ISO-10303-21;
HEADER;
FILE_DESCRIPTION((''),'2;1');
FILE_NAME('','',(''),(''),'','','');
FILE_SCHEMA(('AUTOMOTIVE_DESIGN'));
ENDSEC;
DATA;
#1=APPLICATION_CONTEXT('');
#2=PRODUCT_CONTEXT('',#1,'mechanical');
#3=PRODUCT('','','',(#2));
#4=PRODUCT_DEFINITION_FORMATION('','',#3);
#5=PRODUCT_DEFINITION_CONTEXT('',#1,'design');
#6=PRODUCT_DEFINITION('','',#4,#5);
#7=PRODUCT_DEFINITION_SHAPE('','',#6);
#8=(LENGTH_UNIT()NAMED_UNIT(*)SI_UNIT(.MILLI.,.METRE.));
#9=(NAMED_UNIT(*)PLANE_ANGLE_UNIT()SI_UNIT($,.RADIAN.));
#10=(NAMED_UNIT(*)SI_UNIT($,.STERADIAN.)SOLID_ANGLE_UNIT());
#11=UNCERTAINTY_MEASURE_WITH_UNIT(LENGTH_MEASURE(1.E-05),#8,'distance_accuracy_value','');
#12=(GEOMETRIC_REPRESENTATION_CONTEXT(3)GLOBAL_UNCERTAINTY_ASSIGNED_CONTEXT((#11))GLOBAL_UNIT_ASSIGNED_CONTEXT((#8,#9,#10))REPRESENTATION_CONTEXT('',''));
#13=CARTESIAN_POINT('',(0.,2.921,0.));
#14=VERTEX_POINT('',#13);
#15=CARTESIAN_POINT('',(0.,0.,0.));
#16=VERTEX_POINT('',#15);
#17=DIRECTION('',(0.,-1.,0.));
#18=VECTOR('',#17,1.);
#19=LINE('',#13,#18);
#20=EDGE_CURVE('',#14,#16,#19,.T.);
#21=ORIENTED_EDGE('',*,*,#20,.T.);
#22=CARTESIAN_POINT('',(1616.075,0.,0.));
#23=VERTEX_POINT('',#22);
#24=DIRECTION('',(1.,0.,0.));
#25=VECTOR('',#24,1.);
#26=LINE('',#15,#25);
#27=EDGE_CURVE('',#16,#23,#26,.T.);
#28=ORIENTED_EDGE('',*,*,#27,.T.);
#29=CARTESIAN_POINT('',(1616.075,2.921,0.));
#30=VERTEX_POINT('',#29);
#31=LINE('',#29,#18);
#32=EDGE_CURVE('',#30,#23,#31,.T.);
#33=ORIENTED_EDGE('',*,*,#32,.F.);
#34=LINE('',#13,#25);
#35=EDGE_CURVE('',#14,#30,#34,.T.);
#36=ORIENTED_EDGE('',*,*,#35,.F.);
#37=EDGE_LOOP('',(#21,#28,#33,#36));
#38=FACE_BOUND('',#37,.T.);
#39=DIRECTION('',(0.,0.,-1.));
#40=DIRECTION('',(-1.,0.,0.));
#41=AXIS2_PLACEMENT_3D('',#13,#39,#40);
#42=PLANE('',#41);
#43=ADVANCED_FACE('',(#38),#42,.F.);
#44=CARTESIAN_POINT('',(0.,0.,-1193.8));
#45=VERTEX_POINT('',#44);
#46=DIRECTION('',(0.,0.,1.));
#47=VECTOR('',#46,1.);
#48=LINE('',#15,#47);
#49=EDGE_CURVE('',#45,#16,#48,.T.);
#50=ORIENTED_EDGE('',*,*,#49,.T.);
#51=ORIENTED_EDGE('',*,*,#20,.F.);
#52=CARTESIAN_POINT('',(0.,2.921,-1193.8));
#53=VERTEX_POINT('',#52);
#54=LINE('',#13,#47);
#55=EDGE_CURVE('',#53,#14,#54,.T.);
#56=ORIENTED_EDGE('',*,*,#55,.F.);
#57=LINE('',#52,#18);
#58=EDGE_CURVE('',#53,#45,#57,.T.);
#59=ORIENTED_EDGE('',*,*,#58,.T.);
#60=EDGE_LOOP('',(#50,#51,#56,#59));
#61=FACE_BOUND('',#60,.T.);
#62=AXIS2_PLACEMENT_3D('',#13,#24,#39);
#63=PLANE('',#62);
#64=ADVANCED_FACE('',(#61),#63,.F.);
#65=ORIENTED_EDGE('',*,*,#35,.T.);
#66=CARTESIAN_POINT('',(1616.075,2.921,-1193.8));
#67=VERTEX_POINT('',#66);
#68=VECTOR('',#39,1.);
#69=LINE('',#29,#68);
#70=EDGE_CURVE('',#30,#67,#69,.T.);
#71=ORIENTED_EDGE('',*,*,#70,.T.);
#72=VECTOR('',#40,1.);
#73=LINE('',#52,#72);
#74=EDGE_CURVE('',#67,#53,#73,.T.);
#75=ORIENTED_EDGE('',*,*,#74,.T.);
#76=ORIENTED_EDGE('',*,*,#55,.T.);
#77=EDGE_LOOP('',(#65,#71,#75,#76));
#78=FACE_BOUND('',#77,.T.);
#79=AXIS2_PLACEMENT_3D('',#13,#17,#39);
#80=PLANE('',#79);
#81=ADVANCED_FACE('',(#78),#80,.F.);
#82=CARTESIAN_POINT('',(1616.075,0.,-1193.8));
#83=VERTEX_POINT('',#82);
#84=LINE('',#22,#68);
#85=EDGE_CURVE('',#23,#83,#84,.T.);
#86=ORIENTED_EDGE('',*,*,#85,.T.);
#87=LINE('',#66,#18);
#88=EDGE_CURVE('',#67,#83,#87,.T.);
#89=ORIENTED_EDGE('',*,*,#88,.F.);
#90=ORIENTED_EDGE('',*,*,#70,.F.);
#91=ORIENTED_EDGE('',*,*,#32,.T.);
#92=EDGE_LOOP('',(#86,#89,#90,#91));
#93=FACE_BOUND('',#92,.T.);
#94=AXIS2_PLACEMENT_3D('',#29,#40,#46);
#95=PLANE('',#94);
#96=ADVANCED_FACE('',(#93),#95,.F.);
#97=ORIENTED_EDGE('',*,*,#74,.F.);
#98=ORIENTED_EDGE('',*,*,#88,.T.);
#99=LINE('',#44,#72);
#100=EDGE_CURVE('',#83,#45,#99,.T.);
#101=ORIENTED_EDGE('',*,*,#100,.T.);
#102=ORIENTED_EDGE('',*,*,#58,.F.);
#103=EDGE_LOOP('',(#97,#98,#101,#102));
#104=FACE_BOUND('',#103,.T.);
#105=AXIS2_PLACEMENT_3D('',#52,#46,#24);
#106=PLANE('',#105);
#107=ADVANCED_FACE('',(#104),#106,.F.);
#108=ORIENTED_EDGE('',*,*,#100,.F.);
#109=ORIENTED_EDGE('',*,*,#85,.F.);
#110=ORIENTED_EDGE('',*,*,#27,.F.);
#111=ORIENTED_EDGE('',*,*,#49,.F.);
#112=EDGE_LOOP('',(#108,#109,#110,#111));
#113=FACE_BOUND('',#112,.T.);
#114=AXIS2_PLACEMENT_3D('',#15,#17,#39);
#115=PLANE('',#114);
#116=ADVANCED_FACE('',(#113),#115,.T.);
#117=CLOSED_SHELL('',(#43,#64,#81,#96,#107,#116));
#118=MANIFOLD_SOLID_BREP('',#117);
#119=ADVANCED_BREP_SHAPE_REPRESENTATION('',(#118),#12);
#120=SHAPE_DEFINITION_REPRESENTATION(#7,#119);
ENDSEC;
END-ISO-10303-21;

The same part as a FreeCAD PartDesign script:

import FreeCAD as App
import Part
import Sketcher
Q = App.Units.Quantity


def add_polygon(sketch, points):
    """Adds a closed chain of lines whose ends are joined by coincident constraints."""
    first, n = sketch.GeometryCount, len(points)
    for a, b in zip(points, points[1:] + points[:1]):
        sketch.addGeometry(Part.LineSegment(App.Vector(*a, 0), App.Vector(*b, 0)), False)
    for i in range(n):
        sketch.addConstraint(Sketcher.Constraint("Coincident", first + i, 2, first + (i + 1) % n, 1))

doc = App.newDocument("Part")
body = doc.addObject("PartDesign::Body", "Body")

sketch1 = doc.addObject("Sketcher::SketchObject", "Sketch")
body.addObject(sketch1)
sketch1.AttachmentSupport = (doc.XZ_Plane, [""])
sketch1.MapMode = "FlatFace"
add_polygon(sketch1, [(0, -1193.8), (0, 0), (1616.075, 0), (1616.075, -1193.8)])
sketch1.addConstraint(Sketcher.Constraint("Vertical", 0))
sketch1.addConstraint(Sketcher.Constraint("Horizontal", 1))
sketch1.addConstraint(Sketcher.Constraint("Vertical", 2))
sketch1.addConstraint(Sketcher.Constraint("Horizontal", 3))
sketch1.addConstraint(Sketcher.Constraint("Coincident", 0, 2, -1, 1))
sketch1.addConstraint(Sketcher.Constraint("DistanceY", 0, 1, 0, 2, Q("47 in")))
sketch1.addConstraint(Sketcher.Constraint("DistanceX", 1, 1, 1, 2, Q("63.625 in")))
pad1 = doc.addObject("PartDesign::Pad", "Pad")
body.addObject(pad1)
pad1.Profile = sketch1
pad1.Length = Q("0.115 in")
pad1.Reversed = True

doc.recompute()
